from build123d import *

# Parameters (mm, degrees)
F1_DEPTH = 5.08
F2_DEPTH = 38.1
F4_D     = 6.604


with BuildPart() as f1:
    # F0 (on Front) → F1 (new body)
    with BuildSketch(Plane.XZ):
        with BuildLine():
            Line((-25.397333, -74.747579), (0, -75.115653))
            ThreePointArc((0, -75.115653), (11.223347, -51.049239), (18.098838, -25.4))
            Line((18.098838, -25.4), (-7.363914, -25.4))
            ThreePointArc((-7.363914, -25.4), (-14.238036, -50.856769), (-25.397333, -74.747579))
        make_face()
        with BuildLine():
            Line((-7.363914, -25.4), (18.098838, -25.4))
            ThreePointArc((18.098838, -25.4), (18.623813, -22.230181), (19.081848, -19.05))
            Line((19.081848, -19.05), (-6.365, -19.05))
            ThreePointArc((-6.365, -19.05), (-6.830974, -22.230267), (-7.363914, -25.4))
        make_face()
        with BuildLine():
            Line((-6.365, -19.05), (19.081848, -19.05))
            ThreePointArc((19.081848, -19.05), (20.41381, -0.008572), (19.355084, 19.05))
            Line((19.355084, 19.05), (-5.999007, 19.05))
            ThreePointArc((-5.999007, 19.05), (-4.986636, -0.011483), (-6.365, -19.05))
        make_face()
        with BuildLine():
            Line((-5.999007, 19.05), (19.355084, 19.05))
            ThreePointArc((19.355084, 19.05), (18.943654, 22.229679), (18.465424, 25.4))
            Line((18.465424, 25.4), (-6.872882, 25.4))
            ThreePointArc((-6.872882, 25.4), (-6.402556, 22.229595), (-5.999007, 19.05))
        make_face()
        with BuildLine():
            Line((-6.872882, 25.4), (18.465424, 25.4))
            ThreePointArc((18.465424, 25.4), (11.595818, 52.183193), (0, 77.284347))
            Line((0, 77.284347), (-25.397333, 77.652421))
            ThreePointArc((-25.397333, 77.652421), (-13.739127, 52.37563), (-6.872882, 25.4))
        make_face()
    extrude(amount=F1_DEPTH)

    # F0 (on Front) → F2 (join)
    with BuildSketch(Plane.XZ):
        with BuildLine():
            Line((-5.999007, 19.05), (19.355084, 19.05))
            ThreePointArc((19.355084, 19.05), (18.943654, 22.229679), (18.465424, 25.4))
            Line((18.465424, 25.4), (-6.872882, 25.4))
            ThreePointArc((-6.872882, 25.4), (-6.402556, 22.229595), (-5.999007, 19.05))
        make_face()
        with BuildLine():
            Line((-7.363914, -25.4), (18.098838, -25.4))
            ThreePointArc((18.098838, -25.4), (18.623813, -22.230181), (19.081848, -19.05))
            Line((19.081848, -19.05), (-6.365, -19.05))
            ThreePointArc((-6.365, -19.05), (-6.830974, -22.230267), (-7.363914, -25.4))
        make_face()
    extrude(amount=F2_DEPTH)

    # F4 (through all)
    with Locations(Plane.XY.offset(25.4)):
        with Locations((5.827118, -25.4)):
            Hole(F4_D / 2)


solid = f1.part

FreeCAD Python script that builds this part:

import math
import FreeCAD as App
import Part
import Sketcher

V = App.Vector
Q = App.Units.Quantity

doc = App.newDocument("Part")
params = doc.addObject("Spreadsheet::Sheet", "Params")
for row, (alias, value) in enumerate([
    ("sketch1_length", "1 in"),
    ("sketch1_length2", "1 in"),
    ("pad1_length", "0.2 in"),
    ("pad2_length", "1.5 in"),
    ("sketch3_diameter", "0.26 in"),
    ("hole_diameter", "0.26 in"),
], start=1):
    params.set(f"A{row}", alias)
    params.set(f"B{row}", "=" + value)
    params.setAlias(f"B{row}", alias)

body = doc.addObject("PartDesign::Body", "Body")

# Sketch on XZ plane
sketch1 = body.newObject("Sketcher::SketchObject", "Sketch")
sketch1.AttachmentSupport = (doc.getObject("XZ_Plane"), [""])
sketch1.MapMode = "FlatFace"
sketch1.addGeometry(Part.LineSegment(V(-25.397333, -74.747579, 0), V(0, -75.115653, 0)), False)
sketch1.addGeometry(Part.ArcOfCircle(Part.Circle(V(-131.982285, 1.084353, 0), V(0, 0, 1), 152.400015), math.radians(-29.999999), math.radians(-10.007776)), False)
sketch1.addGeometry(Part.ArcOfCircle(Part.Circle(V(-131.985084, 1.084787, 0), V(0, 0, 1), 152.402846), math.radians(-10.007754), math.radians(-7.59186)), False)
sketch1.addGeometry(Part.ArcOfCircle(Part.Circle(V(-131.982215, 1.084343, 0), V(0, 0, 1), 152.399944), math.radians(-7.591836), math.radians(6.770052)), False)
sketch1.addGeometry(Part.ArcOfCircle(Part.Circle(V(-131.980899, 1.084555, 0), V(0, 0, 1), 152.398612), math.radians(6.770031), math.radians(9.180871)), False)
sketch1.addGeometry(Part.ArcOfCircle(Part.Circle(V(-131.982305, 1.084334, 0), V(0, 0, 1), 152.400035), math.radians(9.180869), math.radians(29.999998)), False)
sketch1.addGeometry(Part.LineSegment(V(0, 77.284347, 0), V(-25.397333, 77.652421, 0)), False)
sketch1.addGeometry(Part.ArcOfCircle(Part.Circle(V(-157.37961, 1.452418, 0), V(0, 0, 1), 152.400006), math.radians(9.040719), math.radians(30)), False)
sketch1.addGeometry(Part.ArcOfCircle(Part.Circle(V(-157.378703, 1.452543, 0), V(0, 0, 1), 152.399091), math.radians(6.63071), math.radians(9.040726)), False)
sketch1.addGeometry(Part.ArcOfCircle(Part.Circle(V(-157.379688, 1.452422, 0), V(0, 0, 1), 152.400083), math.radians(-7.731458), math.radians(6.630712)), False)
sketch1.addGeometry(Part.ArcOfCircle(Part.Circle(V(-157.381324, 1.452702, 0), V(0, 0, 1), 152.401742), math.radians(-10.148313), math.radians(-7.731479)), False)
sketch1.addGeometry(Part.ArcOfCircle(Part.Circle(V(-157.379596, 1.452417, 0), V(0, 0, 1), 152.399991), math.radians(-30), math.radians(-10.148322)), False)
sketch1.addConstraint(Sketcher.Constraint("Coincident", 0, 2, 1, 1))
sketch1.addConstraint(Sketcher.Constraint("Coincident", 1, 2, 2, 1))
sketch1.addConstraint(Sketcher.Constraint("Coincident", 2, 2, 3, 1))
sketch1.addConstraint(Sketcher.Constraint("Coincident", 3, 2, 4, 1))
sketch1.addConstraint(Sketcher.Constraint("Coincident", 4, 2, 5, 1))
sketch1.addConstraint(Sketcher.Constraint("Coincident", 5, 2, 6, 1))
sketch1.addConstraint(Sketcher.Constraint("Coincident", 6, 2, 7, 2))
sketch1.addConstraint(Sketcher.Constraint("Coincident", 7, 1, 8, 2))
sketch1.addConstraint(Sketcher.Constraint("Coincident", 8, 1, 9, 2))
sketch1.addConstraint(Sketcher.Constraint("Coincident", 9, 1, 10, 2))
sketch1.addConstraint(Sketcher.Constraint("Coincident", 10, 1, 11, 2))
sketch1.addConstraint(Sketcher.Constraint("Coincident", 11, 1, 0, 1))
sketch1.addConstraint(Sketcher.Constraint("PointOnObject", 0, 2, -2))
sketch1.addConstraint(Sketcher.Constraint("PointOnObject", 5, 2, -2))
sketch1.addConstraint(Sketcher.Constraint("Distance", 0, Q("1 in")))
sketch1.addConstraint(Sketcher.Constraint("Distance", 6, Q("1 in")))
sketch1.addConstraint(Sketcher.Constraint("DistanceY", 1, 2, -1, 1, Q("1 in")))
sketch1.addConstraint(Sketcher.Constraint("DistanceY", -1, 1, 4, 2, Q("1 in")))
sketch1.addConstraint(Sketcher.Constraint("DistanceY", -1, 1, 7, 1, Q("1 in")))
sketch1.addConstraint(Sketcher.Constraint("DistanceY", 10, 1, -1, 1, Q("1 in")))
sketch1.addConstraint(Sketcher.Constraint("DistanceY", 0, 2, 3, 3, Q("2.9999998 in")))
sketch1.addConstraint(Sketcher.Constraint("DistanceY", 2, 2, 3, 2, Q("1.5 in")))
sketch1.addConstraint(Sketcher.Constraint("DistanceY", 2, 2, 8, 1, Q("1.5 in")))
sketch1.addConstraint(Sketcher.Constraint("DistanceY", 9, 1, 8, 1, Q("1.5 in")))
sketch1.addConstraint(Sketcher.Constraint("DistanceY", 2, 2, -1, 1, Q("0.75 in")))
sketch1.addConstraint(Sketcher.Constraint("Radius", 4, 152.398612))
sketch1.addConstraint(Sketcher.Constraint("Radius", 8, 152.399091))
sketch1.addConstraint(Sketcher.Constraint("Radius", 11, 152.399991))
sketch1.addConstraint(Sketcher.Constraint("Radius", 1, 152.400015))
sketch1.addConstraint(Sketcher.Constraint("Radius", 2, 152.402846))
sketch1.addConstraint(Sketcher.Constraint("Radius", 3, 152.399944))
sketch1.addConstraint(Sketcher.Constraint("Radius", 5, 152.400035))
sketch1.addConstraint(Sketcher.Constraint("Radius", 7, 152.400006))
sketch1.addConstraint(Sketcher.Constraint("Radius", 9, 152.400083))
sketch1.addConstraint(Sketcher.Constraint("Radius", 10, 152.401742))
sketch1.addConstraint(Sketcher.Constraint("DistanceX", 4, 3, -1, 1, 131.980899))
sketch1.addConstraint(Sketcher.Constraint("DistanceY", -1, 1, 10, 3, 1.452702))
sketch1.addConstraint(Sketcher.Constraint("DistanceX", 9, 1, -1, 1, 6.365))
sketch1.addConstraint(Sketcher.Constraint("DistanceX", 2, 3, 1, 3, 0.002799))
sketch1.addConstraint(Sketcher.Constraint("DistanceX", 8, 3, 5, 3, 25.396398))
sketch1.addConstraint(Sketcher.Constraint("DistanceY", 3, 3, 8, 3, 0.3682))
sketch1.addConstraint(Sketcher.Constraint("DistanceX", 3, 3, 3, 2, 151.337299))
sketch1.addConstraint(Sketcher.Constraint("DistanceX", 7, 3, -1, 1, 157.37961))
sketch1.addConstraint(Sketcher.Constraint("DistanceY", -1, 1, 7, 3, 1.452418))
sketch1.addConstraint(Sketcher.Constraint("DistanceX", -1, 1, 1, 2, 18.098838))
sketch1.addConstraint(Sketcher.Constraint("DistanceY", 11, 1, -1, 1, 74.747579))
sketch1.setExpression("Constraints[14]", "Params.sketch1_length")
sketch1.setExpression("Constraints[15]", "Params.sketch1_length2")
pad1 = body.newObject("PartDesign::Pad", "Pad")
pad1.Profile = sketch1
pad1.setExpression("Length", "Params.pad1_length")

# Sketch on XZ plane
sketch2 = body.newObject("Sketcher::SketchObject", "Sketch001")
sketch2.AttachmentSupport = (doc.getObject("XZ_Plane"), [""])
sketch2.MapMode = "FlatFace"
sketch2.addGeometry(Part.LineSegment(V(-6, 19, 0), V(19, 19, 0)), False)
sketch2.addGeometry(Part.ArcOfCircle(Part.Circle(V(-132, 1, 0), V(0, 0, 1), 152), math.radians(6.77), math.radians(9.18)), False)
sketch2.addGeometry(Part.LineSegment(V(18, 25, 0), V(-7, 25, 0)), False)
sketch2.addGeometry(Part.ArcOfCircle(Part.Circle(V(-157, 1, 0), V(0, 0, 1), 152), math.radians(6.63), math.radians(9.04)), False)
sketch2.addGeometry(Part.LineSegment(V(-7, -25, 0), V(18, -25, 0)), False)
sketch2.addGeometry(Part.ArcOfCircle(Part.Circle(V(-132, 1, 0), V(0, 0, 1), 152), math.radians(-10.01), math.radians(-7.59)), False)
sketch2.addGeometry(Part.LineSegment(V(19, -19, 0), V(-6, -19, 0)), False)
sketch2.addGeometry(Part.ArcOfCircle(Part.Circle(V(-157, 1, 0), V(0, 0, 1), 152), math.radians(-10.15), math.radians(-7.73)), False)
sketch2.addConstraint(Sketcher.Constraint("Coincident", 0, 2, 1, 1))
sketch2.addConstraint(Sketcher.Constraint("Coincident", 1, 2, 2, 1))
sketch2.addConstraint(Sketcher.Constraint("Coincident", 2, 2, 3, 2))
sketch2.addConstraint(Sketcher.Constraint("Coincident", 3, 1, 0, 1))
sketch2.addConstraint(Sketcher.Constraint("Coincident", 4, 2, 5, 1))
sketch2.addConstraint(Sketcher.Constraint("Coincident", 5, 2, 6, 1))
sketch2.addConstraint(Sketcher.Constraint("Coincident", 6, 2, 7, 2))
sketch2.addConstraint(Sketcher.Constraint("Coincident", 7, 1, 4, 1))
sketch2.addConstraint(Sketcher.Constraint("Horizontal", 0))
sketch2.addConstraint(Sketcher.Constraint("Horizontal", 2))
sketch2.addConstraint(Sketcher.Constraint("Horizontal", 4))
sketch2.addConstraint(Sketcher.Constraint("Horizontal", 6))
sketch2.addConstraint(Sketcher.Constraint("DistanceY", -1, 1, 1, 2, Q("1 in")))
sketch2.addConstraint(Sketcher.Constraint("DistanceY", 4, 2, -1, 1, Q("1 in")))
sketch2.addConstraint(Sketcher.Constraint("DistanceY", 5, 2, 0, 2, Q("1.5 in")))
sketch2.addConstraint(Sketcher.Constraint("DistanceY", -1, 1, 0, 2, Q("0.75 in")))
sketch2.addConstraint(Sketcher.Constraint("Radius", 1, 152.398612))
sketch2.addConstraint(Sketcher.Constraint("Radius", 3, 152.399091))
sketch2.addConstraint(Sketcher.Constraint("Radius", 5, 152.402846))
sketch2.addConstraint(Sketcher.Constraint("Radius", 7, 152.401742))
sketch2.addConstraint(Sketcher.Constraint("DistanceX", 0, 1, 0, 2, 25.354091))
sketch2.addConstraint(Sketcher.Constraint("DistanceX", 6, 2, 6, 1, 25.446848))
sketch2.addConstraint(Sketcher.Constraint("DistanceX", 1, 3, -1, 1, 131.980899))
sketch2.addConstraint(Sketcher.Constraint("DistanceY", -1, 1, 7, 3, 1.452702))
sketch2.addConstraint(Sketcher.Constraint("DistanceX", 6, 2, -1, 1, 6.365))
sketch2.addConstraint(Sketcher.Constraint("DistanceX", 5, 3, 2, 2, 125.112202))
sketch2.addConstraint(Sketcher.Constraint("DistanceX", 2, 2, 2, 1, 25.338306))
sketch2.addConstraint(Sketcher.Constraint("DistanceX", 4, 1, 4, 2, 25.462752))
pad2 = body.newObject("PartDesign::Pad", "Pad001")
pad2.Profile = sketch2
pad2.setExpression("Length", "Params.pad2_length")

# Sketch on XY plane
sketch3 = body.newObject("Sketcher::SketchObject", "Sketch002")
sketch3.AttachmentSupport = (doc.getObject("XY_Plane"), [""])
sketch3.MapMode = "FlatFace"
sketch3.AttachmentOffset = App.Placement(V(0, 0, 1 * 25.4), App.Rotation())
sketch3.addGeometry(Part.Circle(V(5.8, -25.4, 0), V(0, 0, 1), 3.3), False)
sketch3.addConstraint(Sketcher.Constraint("Diameter", 0, Q("0.26 in")))
sketch3.addConstraint(Sketcher.Constraint("DistanceY", 0, 3, -1, 1, Q("1 in")))
sketch3.addConstraint(Sketcher.Constraint("DistanceX", -1, 1, 0, 3, 5.827118))
sketch3.setExpression("Constraints[0]", "Params.sketch3_diameter")
doc.recompute()
hole = body.newObject("PartDesign::Hole", "Hole")
hole.Profile = sketch3
hole.ThreadType = "None"
hole.setExpression("Diameter", "Params.hole_diameter")
hole.DepthType = "ThroughAll"

doc.recompute()
